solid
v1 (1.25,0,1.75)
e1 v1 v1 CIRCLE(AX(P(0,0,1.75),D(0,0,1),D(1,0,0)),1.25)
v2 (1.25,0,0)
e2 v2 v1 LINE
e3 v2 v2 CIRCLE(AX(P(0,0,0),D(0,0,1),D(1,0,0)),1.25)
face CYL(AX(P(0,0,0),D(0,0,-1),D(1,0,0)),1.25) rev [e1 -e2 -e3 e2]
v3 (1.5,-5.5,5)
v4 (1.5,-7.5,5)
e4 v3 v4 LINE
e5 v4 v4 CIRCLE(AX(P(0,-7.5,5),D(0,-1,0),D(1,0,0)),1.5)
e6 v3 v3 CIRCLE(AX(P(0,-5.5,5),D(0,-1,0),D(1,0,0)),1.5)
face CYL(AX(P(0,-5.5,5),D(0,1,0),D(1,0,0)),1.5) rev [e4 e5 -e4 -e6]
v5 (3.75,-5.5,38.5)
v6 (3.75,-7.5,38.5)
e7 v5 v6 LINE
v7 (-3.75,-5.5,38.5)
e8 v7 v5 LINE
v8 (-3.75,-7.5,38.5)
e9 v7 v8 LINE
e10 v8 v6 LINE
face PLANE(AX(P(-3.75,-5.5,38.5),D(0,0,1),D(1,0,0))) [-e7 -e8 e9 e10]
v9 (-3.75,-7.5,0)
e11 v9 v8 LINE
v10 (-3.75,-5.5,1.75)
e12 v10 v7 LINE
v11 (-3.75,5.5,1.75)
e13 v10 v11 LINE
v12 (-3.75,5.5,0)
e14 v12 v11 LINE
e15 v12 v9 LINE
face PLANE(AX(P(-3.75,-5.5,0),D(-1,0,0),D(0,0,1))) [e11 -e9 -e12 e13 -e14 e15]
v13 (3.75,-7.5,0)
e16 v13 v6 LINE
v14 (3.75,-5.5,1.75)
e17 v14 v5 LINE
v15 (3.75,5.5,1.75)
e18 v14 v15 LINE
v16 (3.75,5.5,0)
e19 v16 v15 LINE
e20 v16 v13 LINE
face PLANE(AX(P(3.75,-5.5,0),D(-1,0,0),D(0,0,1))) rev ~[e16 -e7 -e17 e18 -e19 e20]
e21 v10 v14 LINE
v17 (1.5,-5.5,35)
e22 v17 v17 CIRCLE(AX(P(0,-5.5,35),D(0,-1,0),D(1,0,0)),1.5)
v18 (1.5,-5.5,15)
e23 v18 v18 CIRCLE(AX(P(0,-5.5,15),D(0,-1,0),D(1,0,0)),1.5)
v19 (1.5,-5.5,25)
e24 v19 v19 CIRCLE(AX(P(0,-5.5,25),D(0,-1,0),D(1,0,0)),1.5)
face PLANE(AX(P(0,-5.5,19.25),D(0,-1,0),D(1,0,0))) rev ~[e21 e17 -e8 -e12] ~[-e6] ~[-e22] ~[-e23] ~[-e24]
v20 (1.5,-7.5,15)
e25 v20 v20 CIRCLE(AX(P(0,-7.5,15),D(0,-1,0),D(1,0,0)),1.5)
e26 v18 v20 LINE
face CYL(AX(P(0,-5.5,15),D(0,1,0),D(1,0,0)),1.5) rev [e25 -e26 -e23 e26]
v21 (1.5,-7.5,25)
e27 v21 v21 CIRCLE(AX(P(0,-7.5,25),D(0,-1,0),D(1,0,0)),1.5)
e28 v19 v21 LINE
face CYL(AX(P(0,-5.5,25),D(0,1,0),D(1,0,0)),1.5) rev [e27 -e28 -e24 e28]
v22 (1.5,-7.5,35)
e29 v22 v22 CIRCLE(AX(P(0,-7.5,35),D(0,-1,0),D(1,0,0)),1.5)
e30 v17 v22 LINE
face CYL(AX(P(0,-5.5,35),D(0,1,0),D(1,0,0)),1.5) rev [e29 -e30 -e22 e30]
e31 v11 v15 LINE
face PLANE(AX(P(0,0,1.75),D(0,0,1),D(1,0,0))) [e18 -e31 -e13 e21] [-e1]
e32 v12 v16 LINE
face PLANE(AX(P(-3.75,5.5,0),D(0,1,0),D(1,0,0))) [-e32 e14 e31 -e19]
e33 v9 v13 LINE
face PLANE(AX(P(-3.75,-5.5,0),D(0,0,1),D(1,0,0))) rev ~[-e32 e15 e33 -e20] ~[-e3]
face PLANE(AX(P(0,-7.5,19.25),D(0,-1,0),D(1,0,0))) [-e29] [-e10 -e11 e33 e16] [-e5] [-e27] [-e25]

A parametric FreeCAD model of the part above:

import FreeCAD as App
import Part
import Sketcher
from FreeCAD import Vector
Q = App.Units.Quantity

doc = App.newDocument("Part")
body = doc.addObject("PartDesign::Body", "Body")

sketch1 = body.newObject("Sketcher::SketchObject", "Sketch")
sketch1.AttachmentSupport = (doc.getObject("XY_Plane"), [""])
sketch1.MapMode = "FlatFace"
sketch1.addGeometry(Part.LineSegment(Vector(-3.8, 5.5, 0), Vector(-3.8, -5.5, 0)), False)
sketch1.addGeometry(Part.LineSegment(Vector(-3.8, -5.5, 0), Vector(3.8, -5.5, 0)), False)
sketch1.addGeometry(Part.LineSegment(Vector(3.8, -5.5, 0), Vector(3.8, 5.5, 0)), False)
sketch1.addGeometry(Part.LineSegment(Vector(3.8, 5.5, 0), Vector(-3.8, 5.5, 0)), False)
sketch1.addGeometry(Part.Circle(Vector(0, 0, 0), Vector(0, 0, 1), 1.2), False)
sketch1.addConstraint(Sketcher.Constraint("Coincident", 0, 2, 1, 1))
sketch1.addConstraint(Sketcher.Constraint("Coincident", 1, 2, 2, 1))
sketch1.addConstraint(Sketcher.Constraint("Coincident", 2, 2, 3, 1))
sketch1.addConstraint(Sketcher.Constraint("Coincident", 3, 2, 0, 1))
sketch1.addConstraint(Sketcher.Constraint("Vertical", 0))
sketch1.addConstraint(Sketcher.Constraint("Horizontal", 1))
sketch1.addConstraint(Sketcher.Constraint("Vertical", 2))
sketch1.addConstraint(Sketcher.Constraint("Horizontal", 3))
sketch1.addConstraint(Sketcher.Constraint("Coincident", 4, 3, -1, 1))
sketch1.addConstraint(Sketcher.Constraint("Symmetric", 0, 2, 2, 2, -1, 1))
sketch1.addConstraint(Sketcher.Constraint("Diameter", 4, Q("2.5 mm")))
sketch1.addConstraint(Sketcher.Constraint("DistanceY", 0, 2, 0, 1, Q("11 mm")))
sketch1.addConstraint(Sketcher.Constraint("DistanceX", 1, 1, 1, 2, Q("7.5 mm")))
pad1 = body.newObject("PartDesign::Pad", "Pad")
pad1.Profile = sketch1
pad1.Length = 1.75

sketch2 = body.newObject("Sketcher::SketchObject", "Sketch001")
sketch2.AttachmentSupport = (doc.getObject("XZ_Plane"), [""])
sketch2.MapMode = "FlatFace"
sketch2.AttachmentOffset = App.Placement(Vector(0, 0, 5.5), App.Rotation())
sketch2.addGeometry(Part.LineSegment(Vector(-3.8, 38.5, 0), Vector(-3.8, 0, 0)), False)
sketch2.addGeometry(Part.LineSegment(Vector(-3.8, 0, 0), Vector(3.8, 0, 0)), False)
sketch2.addGeometry(Part.LineSegment(Vector(3.8, 0, 0), Vector(3.8, 38.5, 0)), False)
sketch2.addGeometry(Part.LineSegment(Vector(3.8, 38.5, 0), Vector(-3.8, 38.5, 0)), False)
sketch2.addGeometry(Part.Circle(Vector(0, 5, 0), Vector(0, 0, 1), 1.5), False)
sketch2.addGeometry(Part.Circle(Vector(0, 15, 0), Vector(0, 0, 1), 1.5), False)
sketch2.addGeometry(Part.Circle(Vector(0, 25, 0), Vector(0, 0, 1), 1.5), False)
sketch2.addGeometry(Part.Circle(Vector(0, 35, 0), Vector(0, 0, 1), 1.5), False)
sketch2.addConstraint(Sketcher.Constraint("Coincident", 0, 2, 1, 1))
sketch2.addConstraint(Sketcher.Constraint("Coincident", 1, 2, 2, 1))
sketch2.addConstraint(Sketcher.Constraint("Coincident", 2, 2, 3, 1))
sketch2.addConstraint(Sketcher.Constraint("Coincident", 3, 2, 0, 1))
sketch2.addConstraint(Sketcher.Constraint("Vertical", 0))
sketch2.addConstraint(Sketcher.Constraint("Horizontal", 1))
sketch2.addConstraint(Sketcher.Constraint("Vertical", 2))
sketch2.addConstraint(Sketcher.Constraint("Horizontal", 3))
sketch2.addConstraint(Sketcher.Constraint("Equal", 4, 5))
sketch2.addConstraint(Sketcher.Constraint("Equal", 5, 6))
sketch2.addConstraint(Sketcher.Constraint("Equal", 6, 7))
sketch2.addConstraint(Sketcher.Constraint("Symmetric", 0, 2, 1, 2, -1, 1))
sketch2.addConstraint(Sketcher.Constraint("PointOnObject", 4, 3, -2))
sketch2.addConstraint(Sketcher.Constraint("PointOnObject", 5, 3, -2))
sketch2.addConstraint(Sketcher.Constraint("PointOnObject", 6, 3, -2))
sketch2.addConstraint(Sketcher.Constraint("PointOnObject", 7, 3, -2))
sketch2.addConstraint(Sketcher.Constraint("Diameter", 4, Q("3 mm")))
sketch2.addConstraint(Sketcher.Constraint("DistanceX", 1, 1, 1, 2, Q("7.5 mm")))
sketch2.addConstraint(Sketcher.Constraint("DistanceY", 0, 2, 0, 1, Q("38.5 mm")))
sketch2.addConstraint(Sketcher.Constraint("DistanceY", -1, 1, 4, 3, Q("5 mm")))
sketch2.addConstraint(Sketcher.Constraint("DistanceY", -1, 1, 5, 3, Q("15 mm")))
sketch2.addConstraint(Sketcher.Constraint("DistanceY", -1, 1, 6, 3, Q("25 mm")))
sketch2.addConstraint(Sketcher.Constraint("DistanceY", -1, 1, 7, 3, Q("35 mm")))
pad2 = body.newObject("PartDesign::Pad", "Pad001")
pad2.Profile = sketch2
pad2.Length = 2

doc.recompute()
